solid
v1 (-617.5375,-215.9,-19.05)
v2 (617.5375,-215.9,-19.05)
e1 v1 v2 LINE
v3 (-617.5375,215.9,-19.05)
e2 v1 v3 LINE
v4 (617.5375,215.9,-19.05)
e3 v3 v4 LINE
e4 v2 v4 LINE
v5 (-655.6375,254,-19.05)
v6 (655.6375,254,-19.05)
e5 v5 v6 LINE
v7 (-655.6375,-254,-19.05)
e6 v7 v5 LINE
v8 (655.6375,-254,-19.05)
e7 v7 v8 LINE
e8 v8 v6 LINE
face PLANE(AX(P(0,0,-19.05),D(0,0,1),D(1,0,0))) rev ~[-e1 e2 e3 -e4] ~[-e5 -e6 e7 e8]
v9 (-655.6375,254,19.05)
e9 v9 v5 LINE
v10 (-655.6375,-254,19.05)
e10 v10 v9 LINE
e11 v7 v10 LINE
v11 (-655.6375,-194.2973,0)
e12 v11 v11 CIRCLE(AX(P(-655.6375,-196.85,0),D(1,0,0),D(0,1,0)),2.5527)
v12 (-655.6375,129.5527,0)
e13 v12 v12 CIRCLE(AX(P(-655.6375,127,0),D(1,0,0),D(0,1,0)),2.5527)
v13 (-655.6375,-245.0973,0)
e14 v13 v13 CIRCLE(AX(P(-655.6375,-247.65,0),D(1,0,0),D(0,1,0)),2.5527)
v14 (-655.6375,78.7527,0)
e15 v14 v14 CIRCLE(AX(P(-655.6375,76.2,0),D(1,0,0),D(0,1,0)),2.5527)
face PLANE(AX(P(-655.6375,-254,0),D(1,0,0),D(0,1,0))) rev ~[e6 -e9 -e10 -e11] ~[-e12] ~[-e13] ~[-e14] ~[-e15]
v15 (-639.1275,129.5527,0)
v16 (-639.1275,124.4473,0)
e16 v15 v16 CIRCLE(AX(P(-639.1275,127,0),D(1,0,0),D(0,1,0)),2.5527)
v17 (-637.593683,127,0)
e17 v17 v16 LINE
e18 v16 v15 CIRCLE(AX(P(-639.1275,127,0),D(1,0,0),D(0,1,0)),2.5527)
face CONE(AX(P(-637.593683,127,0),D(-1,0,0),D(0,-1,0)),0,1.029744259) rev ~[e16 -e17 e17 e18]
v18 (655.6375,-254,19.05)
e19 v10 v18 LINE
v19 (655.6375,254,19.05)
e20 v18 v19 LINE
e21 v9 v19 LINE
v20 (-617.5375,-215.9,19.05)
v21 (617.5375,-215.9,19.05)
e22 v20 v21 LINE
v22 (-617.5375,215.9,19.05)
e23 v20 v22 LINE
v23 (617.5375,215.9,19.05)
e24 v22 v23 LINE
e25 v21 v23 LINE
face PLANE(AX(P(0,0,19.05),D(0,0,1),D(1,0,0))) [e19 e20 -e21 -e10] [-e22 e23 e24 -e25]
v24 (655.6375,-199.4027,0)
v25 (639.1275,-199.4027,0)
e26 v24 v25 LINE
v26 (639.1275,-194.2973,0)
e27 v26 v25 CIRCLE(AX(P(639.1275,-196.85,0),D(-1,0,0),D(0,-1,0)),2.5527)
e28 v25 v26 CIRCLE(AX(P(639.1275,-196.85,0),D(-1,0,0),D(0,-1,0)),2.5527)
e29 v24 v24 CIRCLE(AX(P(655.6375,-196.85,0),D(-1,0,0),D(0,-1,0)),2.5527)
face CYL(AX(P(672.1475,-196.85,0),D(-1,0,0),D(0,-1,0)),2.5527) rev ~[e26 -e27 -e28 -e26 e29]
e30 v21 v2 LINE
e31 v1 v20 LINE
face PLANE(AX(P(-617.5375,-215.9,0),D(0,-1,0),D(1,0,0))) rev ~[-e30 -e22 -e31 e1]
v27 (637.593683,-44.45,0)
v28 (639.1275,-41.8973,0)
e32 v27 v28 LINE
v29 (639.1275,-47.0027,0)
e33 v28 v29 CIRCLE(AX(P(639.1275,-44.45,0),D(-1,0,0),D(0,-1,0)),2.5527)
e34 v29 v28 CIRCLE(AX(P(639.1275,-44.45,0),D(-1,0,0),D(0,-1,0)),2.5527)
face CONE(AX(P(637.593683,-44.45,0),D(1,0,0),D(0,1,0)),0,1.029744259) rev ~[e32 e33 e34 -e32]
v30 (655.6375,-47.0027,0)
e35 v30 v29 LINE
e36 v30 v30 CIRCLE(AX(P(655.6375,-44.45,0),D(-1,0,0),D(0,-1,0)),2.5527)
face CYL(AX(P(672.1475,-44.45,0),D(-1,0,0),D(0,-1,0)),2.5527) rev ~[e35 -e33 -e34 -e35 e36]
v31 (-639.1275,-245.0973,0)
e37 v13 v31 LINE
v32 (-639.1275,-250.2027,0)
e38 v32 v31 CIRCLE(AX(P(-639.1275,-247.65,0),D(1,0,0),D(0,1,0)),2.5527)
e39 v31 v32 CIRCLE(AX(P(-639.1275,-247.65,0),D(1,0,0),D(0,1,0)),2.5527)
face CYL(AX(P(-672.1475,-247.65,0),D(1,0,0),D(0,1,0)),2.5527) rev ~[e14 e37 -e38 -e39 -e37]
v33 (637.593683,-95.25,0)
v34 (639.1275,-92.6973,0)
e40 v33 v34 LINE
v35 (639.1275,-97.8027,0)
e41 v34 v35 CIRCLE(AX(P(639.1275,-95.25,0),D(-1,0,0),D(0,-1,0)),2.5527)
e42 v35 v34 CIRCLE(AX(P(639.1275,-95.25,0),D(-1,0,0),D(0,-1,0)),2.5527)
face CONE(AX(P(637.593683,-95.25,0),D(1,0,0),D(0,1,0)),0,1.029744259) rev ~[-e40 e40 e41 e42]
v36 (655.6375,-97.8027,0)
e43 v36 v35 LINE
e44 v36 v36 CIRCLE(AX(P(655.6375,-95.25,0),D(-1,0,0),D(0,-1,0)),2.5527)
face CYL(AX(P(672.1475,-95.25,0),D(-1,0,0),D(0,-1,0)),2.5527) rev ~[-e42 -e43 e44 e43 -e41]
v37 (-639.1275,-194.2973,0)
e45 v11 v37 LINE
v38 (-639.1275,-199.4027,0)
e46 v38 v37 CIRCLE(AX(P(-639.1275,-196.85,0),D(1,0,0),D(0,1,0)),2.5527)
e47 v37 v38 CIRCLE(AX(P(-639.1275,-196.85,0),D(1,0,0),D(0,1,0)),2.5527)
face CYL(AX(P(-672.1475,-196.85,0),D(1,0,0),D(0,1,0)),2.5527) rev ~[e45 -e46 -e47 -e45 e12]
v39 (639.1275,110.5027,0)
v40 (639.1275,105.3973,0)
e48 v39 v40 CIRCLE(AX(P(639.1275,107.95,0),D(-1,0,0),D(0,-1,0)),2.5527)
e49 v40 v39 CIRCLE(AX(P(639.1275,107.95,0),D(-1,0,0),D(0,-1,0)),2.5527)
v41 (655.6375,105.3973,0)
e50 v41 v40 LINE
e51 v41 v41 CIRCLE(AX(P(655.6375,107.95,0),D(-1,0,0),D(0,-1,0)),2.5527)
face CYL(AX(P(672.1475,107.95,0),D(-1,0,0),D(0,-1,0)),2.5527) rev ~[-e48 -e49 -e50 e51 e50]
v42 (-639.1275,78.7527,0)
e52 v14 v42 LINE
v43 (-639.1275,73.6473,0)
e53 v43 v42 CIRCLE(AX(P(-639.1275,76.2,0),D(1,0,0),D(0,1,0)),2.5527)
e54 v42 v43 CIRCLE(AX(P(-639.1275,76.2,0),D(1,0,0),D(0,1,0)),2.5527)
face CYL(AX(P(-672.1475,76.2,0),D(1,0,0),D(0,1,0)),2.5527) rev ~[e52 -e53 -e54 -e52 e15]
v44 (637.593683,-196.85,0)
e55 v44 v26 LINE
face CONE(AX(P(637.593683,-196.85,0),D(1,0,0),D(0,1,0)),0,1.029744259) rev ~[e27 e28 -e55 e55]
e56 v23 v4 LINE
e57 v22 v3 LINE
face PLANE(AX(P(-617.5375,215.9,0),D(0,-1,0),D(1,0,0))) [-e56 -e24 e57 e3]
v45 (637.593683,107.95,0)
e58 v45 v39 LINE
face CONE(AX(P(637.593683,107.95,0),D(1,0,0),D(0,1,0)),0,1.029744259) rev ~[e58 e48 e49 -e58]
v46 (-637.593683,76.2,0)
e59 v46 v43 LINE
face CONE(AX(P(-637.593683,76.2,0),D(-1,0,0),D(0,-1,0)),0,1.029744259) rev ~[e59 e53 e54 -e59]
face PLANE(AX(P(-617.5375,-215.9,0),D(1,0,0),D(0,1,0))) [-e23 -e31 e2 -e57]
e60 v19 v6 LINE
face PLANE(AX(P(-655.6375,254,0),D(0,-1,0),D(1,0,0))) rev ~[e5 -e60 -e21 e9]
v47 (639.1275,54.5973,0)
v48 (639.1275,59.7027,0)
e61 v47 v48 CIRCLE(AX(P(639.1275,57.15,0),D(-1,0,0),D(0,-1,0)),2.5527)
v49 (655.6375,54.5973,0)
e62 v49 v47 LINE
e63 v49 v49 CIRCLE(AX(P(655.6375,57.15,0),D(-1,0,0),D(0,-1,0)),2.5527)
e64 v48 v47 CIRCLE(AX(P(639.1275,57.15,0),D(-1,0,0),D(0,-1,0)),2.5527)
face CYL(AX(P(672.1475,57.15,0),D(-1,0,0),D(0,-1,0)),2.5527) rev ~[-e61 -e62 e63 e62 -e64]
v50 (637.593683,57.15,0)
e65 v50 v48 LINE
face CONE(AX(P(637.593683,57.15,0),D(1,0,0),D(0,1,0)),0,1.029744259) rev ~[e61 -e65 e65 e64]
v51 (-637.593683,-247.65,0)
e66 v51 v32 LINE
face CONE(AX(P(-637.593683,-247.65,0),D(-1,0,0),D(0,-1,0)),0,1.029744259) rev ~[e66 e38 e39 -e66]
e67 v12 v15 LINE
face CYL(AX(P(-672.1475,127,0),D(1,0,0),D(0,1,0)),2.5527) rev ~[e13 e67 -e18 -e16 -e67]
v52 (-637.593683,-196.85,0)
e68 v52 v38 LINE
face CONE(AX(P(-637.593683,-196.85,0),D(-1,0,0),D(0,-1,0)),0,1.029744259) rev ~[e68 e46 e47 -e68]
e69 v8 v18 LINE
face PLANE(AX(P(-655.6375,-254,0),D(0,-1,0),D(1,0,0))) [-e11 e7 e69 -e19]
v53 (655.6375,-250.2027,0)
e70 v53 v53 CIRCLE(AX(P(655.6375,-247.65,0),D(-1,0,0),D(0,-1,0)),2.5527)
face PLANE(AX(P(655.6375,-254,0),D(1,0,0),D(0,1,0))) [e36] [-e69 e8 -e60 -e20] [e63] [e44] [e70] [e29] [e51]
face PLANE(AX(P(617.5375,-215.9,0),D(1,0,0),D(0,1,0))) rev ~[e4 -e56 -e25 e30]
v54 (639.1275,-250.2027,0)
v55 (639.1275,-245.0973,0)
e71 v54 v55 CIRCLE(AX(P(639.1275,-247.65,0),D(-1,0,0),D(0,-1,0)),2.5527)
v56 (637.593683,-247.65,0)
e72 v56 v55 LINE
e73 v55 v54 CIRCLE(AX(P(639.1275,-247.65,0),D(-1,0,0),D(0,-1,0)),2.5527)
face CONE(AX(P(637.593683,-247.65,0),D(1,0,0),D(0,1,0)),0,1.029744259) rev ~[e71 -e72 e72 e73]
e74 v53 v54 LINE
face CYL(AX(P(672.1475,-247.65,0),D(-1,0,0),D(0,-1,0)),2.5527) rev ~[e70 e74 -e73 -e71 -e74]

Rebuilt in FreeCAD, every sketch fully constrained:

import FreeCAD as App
import Part
import Sketcher
Q = App.Units.Quantity

doc = App.newDocument("Part")
body = doc.addObject("PartDesign::Body", "Body")

sketch1 = body.newObject("Sketcher::SketchObject", "Sketch")
sketch1.AttachmentSupport = (doc.getObject("XY_Plane"), [""])
sketch1.MapMode = "FlatFace"
sketch1.addGeometry(Part.LineSegment(App.Vector(-655.6375, 254, 0), App.Vector(-655.6375, -254, 0)), False)
sketch1.addGeometry(Part.LineSegment(App.Vector(-655.6375, -254, 0), App.Vector(655.6375, -254, 0)), False)
sketch1.addGeometry(Part.LineSegment(App.Vector(655.6375, -254, 0), App.Vector(655.6375, 254, 0)), False)
sketch1.addGeometry(Part.LineSegment(App.Vector(655.6375, 254, 0), App.Vector(-655.6375, 254, 0)), False)
sketch1.addGeometry(Part.LineSegment(App.Vector(617.5375, -215.9, 0), App.Vector(-617.5375, -215.9, 0)), False)
sketch1.addGeometry(Part.LineSegment(App.Vector(-617.5375, -215.9, 0), App.Vector(-617.5375, 215.9, 0)), False)
sketch1.addGeometry(Part.LineSegment(App.Vector(-617.5375, 215.9, 0), App.Vector(617.5375, 215.9, 0)), False)
sketch1.addGeometry(Part.LineSegment(App.Vector(617.5375, 215.9, 0), App.Vector(617.5375, -215.9, 0)), False)
sketch1.addConstraint(Sketcher.Constraint("Coincident", 0, 2, 1, 1))
sketch1.addConstraint(Sketcher.Constraint("Coincident", 1, 2, 2, 1))
sketch1.addConstraint(Sketcher.Constraint("Coincident", 2, 2, 3, 1))
sketch1.addConstraint(Sketcher.Constraint("Coincident", 3, 2, 0, 1))
sketch1.addConstraint(Sketcher.Constraint("Coincident", 4, 2, 5, 1))
sketch1.addConstraint(Sketcher.Constraint("Coincident", 5, 2, 6, 1))
sketch1.addConstraint(Sketcher.Constraint("Coincident", 6, 2, 7, 1))
sketch1.addConstraint(Sketcher.Constraint("Coincident", 7, 2, 4, 1))
sketch1.addConstraint(Sketcher.Constraint("Vertical", 0))
sketch1.addConstraint(Sketcher.Constraint("Horizontal", 1))
sketch1.addConstraint(Sketcher.Constraint("Vertical", 2))
sketch1.addConstraint(Sketcher.Constraint("Horizontal", 3))
sketch1.addConstraint(Sketcher.Constraint("Horizontal", 4))
sketch1.addConstraint(Sketcher.Constraint("Vertical", 5))
sketch1.addConstraint(Sketcher.Constraint("Horizontal", 6))
sketch1.addConstraint(Sketcher.Constraint("Vertical", 7))
sketch1.addConstraint(Sketcher.Constraint("Symmetric", 0, 2, 2, 2, -1, 1))
sketch1.addConstraint(Sketcher.Constraint("Symmetric", 4, 2, 6, 2, -1, 1))
sketch1.addConstraint(Sketcher.Constraint("DistanceY", 0, 2, 0, 1, Q("20 in")))
sketch1.addConstraint(Sketcher.Constraint("DistanceY", 5, 1, 5, 2, Q("17 in")))
sketch1.addConstraint(Sketcher.Constraint("DistanceX", 0, 2, 4, 2, Q("1.5 in")))
sketch1.addConstraint(Sketcher.Constraint("DistanceX", 1, 1, 1, 2, Q("51.625 in")))
pad1 = body.newObject("PartDesign::Pad", "Pad")
pad1.Profile = sketch1
pad1.Length = Q("1.5 in")
pad1.Midplane = True

sketch2 = body.newObject("Sketcher::SketchObject", "Sketch001")
sketch2.AttachmentSupport = (doc.getObject("YZ_Plane"), [""])
sketch2.MapMode = "FlatFace"
sketch2.AttachmentOffset = App.Placement(App.Vector(0, 0, 25.8125 * 25.4), App.Rotation())
sketch2.addGeometry(Part.Circle(App.Vector(57.15, 0, 0), App.Vector(0, 0, 1), 2.5527), False)
sketch2.addGeometry(Part.Circle(App.Vector(107.95, 0, 0), App.Vector(0, 0, 1), 2.5527), False)
sketch2.addGeometry(Part.Circle(App.Vector(-196.85, 0, 0), App.Vector(0, 0, 1), 2.5527), False)
sketch2.addGeometry(Part.Circle(App.Vector(-247.65, 0, 0), App.Vector(0, 0, 1), 2.5527), False)
sketch2.addGeometry(Part.Circle(App.Vector(-44.45, 0, 0), App.Vector(0, 0, 1), 2.5527), False)
sketch2.addGeometry(Part.Circle(App.Vector(-95.25, 0, 0), App.Vector(0, 0, 1), 2.5527), False)
sketch2.addConstraint(Sketcher.Constraint("Equal", 0, 1))
sketch2.addConstraint(Sketcher.Constraint("Equal", 1, 2))
sketch2.addConstraint(Sketcher.Constraint("Equal", 2, 3))
sketch2.addConstraint(Sketcher.Constraint("Equal", 3, 4))
sketch2.addConstraint(Sketcher.Constraint("Equal", 4, 5))
sketch2.addConstraint(Sketcher.Constraint("PointOnObject", 0, 3, -1))
sketch2.addConstraint(Sketcher.Constraint("PointOnObject", 1, 3, -1))
sketch2.addConstraint(Sketcher.Constraint("PointOnObject", 2, 3, -1))
sketch2.addConstraint(Sketcher.Constraint("PointOnObject", 3, 3, -1))
sketch2.addConstraint(Sketcher.Constraint("PointOnObject", 4, 3, -1))
sketch2.addConstraint(Sketcher.Constraint("PointOnObject", 5, 3, -1))
sketch2.addConstraint(Sketcher.Constraint("Diameter", 0, Q("0.201 in")))
sketch2.addConstraint(Sketcher.Constraint("DistanceX", 0, 3, 1, 3, Q("2 in")))
sketch2.addConstraint(Sketcher.Constraint("DistanceX", 2, 3, 0, 3, Q("10 in")))
sketch2.addConstraint(Sketcher.Constraint("DistanceX", 3, 3, 2, 3, Q("2 in")))
sketch2.addConstraint(Sketcher.Constraint("DistanceX", 4, 3, 0, 3, Q("4 in")))
sketch2.addConstraint(Sketcher.Constraint("DistanceX", 5, 3, 4, 3, Q("2 in")))
sketch2.addConstraint(Sketcher.Constraint("DistanceX", -1, 1, 0, 3, Q("2.25 in")))
doc.recompute()
hole = body.newObject("PartDesign::Hole", "Hole")
hole.Profile = sketch2
hole.ThreadType = "None"
hole.Diameter = Q("0.201 in")
hole.DepthType = "Dimension"
hole.Depth = Q("0.65 in")
hole.DrillPoint = "Angled"
hole.DrillPointAngle = 118

sketch3 = body.newObject("Sketcher::SketchObject", "Sketch002")
sketch3.AttachmentSupport = (doc.getObject("YZ_Plane"), [""])
sketch3.MapMode = "FlatFace"
sketch3.AttachmentOffset = App.Placement(App.Vector(0, 0, -25.8125 * 25.4), App.Rotation())
sketch3.addGeometry(Part.Circle(App.Vector(-247.65, 0, 0), App.Vector(0, 0, 1), 2.5527), False)
sketch3.addGeometry(Part.Circle(App.Vector(-196.85, 0, 0), App.Vector(0, 0, 1), 2.5527), False)
sketch3.addGeometry(Part.Circle(App.Vector(76.2, 0, 0), App.Vector(0, 0, 1), 2.5527), False)
sketch3.addGeometry(Part.Circle(App.Vector(127, 0, 0), App.Vector(0, 0, 1), 2.5527), False)
sketch3.addConstraint(Sketcher.Constraint("Equal", 0, 1))
sketch3.addConstraint(Sketcher.Constraint("Equal", 1, 2))
sketch3.addConstraint(Sketcher.Constraint("Equal", 2, 3))
sketch3.addConstraint(Sketcher.Constraint("PointOnObject", 0, 3, -1))
sketch3.addConstraint(Sketcher.Constraint("PointOnObject", 1, 3, -1))
sketch3.addConstraint(Sketcher.Constraint("PointOnObject", 2, 3, -1))
sketch3.addConstraint(Sketcher.Constraint("PointOnObject", 3, 3, -1))
sketch3.addConstraint(Sketcher.Constraint("Diameter", 0, Q("0.201 in")))
sketch3.addConstraint(Sketcher.Constraint("DistanceX", -1, 1, 2, 3, Q("3 in")))
sketch3.addConstraint(Sketcher.Constraint("DistanceX", -1, 1, 3, 3, Q("5 in")))
sketch3.addConstraint(Sketcher.Constraint("DistanceX", 0, 3, 1, 3, Q("2 in")))
sketch3.addConstraint(Sketcher.Constraint("DistanceX", 0, 3, -1, 1, Q("9.75 in")))
doc.recompute()
hole2 = body.newObject("PartDesign::Hole", "Hole001")
hole2.Profile = sketch3
hole2.ThreadType = "None"
hole2.Diameter = Q("0.201 in")
hole2.DepthType = "Dimension"
hole2.Depth = Q("0.65 in")
hole2.DrillPoint = "Angled"
hole2.DrillPointAngle = 118
hole2.Reversed = True

doc.recompute()
